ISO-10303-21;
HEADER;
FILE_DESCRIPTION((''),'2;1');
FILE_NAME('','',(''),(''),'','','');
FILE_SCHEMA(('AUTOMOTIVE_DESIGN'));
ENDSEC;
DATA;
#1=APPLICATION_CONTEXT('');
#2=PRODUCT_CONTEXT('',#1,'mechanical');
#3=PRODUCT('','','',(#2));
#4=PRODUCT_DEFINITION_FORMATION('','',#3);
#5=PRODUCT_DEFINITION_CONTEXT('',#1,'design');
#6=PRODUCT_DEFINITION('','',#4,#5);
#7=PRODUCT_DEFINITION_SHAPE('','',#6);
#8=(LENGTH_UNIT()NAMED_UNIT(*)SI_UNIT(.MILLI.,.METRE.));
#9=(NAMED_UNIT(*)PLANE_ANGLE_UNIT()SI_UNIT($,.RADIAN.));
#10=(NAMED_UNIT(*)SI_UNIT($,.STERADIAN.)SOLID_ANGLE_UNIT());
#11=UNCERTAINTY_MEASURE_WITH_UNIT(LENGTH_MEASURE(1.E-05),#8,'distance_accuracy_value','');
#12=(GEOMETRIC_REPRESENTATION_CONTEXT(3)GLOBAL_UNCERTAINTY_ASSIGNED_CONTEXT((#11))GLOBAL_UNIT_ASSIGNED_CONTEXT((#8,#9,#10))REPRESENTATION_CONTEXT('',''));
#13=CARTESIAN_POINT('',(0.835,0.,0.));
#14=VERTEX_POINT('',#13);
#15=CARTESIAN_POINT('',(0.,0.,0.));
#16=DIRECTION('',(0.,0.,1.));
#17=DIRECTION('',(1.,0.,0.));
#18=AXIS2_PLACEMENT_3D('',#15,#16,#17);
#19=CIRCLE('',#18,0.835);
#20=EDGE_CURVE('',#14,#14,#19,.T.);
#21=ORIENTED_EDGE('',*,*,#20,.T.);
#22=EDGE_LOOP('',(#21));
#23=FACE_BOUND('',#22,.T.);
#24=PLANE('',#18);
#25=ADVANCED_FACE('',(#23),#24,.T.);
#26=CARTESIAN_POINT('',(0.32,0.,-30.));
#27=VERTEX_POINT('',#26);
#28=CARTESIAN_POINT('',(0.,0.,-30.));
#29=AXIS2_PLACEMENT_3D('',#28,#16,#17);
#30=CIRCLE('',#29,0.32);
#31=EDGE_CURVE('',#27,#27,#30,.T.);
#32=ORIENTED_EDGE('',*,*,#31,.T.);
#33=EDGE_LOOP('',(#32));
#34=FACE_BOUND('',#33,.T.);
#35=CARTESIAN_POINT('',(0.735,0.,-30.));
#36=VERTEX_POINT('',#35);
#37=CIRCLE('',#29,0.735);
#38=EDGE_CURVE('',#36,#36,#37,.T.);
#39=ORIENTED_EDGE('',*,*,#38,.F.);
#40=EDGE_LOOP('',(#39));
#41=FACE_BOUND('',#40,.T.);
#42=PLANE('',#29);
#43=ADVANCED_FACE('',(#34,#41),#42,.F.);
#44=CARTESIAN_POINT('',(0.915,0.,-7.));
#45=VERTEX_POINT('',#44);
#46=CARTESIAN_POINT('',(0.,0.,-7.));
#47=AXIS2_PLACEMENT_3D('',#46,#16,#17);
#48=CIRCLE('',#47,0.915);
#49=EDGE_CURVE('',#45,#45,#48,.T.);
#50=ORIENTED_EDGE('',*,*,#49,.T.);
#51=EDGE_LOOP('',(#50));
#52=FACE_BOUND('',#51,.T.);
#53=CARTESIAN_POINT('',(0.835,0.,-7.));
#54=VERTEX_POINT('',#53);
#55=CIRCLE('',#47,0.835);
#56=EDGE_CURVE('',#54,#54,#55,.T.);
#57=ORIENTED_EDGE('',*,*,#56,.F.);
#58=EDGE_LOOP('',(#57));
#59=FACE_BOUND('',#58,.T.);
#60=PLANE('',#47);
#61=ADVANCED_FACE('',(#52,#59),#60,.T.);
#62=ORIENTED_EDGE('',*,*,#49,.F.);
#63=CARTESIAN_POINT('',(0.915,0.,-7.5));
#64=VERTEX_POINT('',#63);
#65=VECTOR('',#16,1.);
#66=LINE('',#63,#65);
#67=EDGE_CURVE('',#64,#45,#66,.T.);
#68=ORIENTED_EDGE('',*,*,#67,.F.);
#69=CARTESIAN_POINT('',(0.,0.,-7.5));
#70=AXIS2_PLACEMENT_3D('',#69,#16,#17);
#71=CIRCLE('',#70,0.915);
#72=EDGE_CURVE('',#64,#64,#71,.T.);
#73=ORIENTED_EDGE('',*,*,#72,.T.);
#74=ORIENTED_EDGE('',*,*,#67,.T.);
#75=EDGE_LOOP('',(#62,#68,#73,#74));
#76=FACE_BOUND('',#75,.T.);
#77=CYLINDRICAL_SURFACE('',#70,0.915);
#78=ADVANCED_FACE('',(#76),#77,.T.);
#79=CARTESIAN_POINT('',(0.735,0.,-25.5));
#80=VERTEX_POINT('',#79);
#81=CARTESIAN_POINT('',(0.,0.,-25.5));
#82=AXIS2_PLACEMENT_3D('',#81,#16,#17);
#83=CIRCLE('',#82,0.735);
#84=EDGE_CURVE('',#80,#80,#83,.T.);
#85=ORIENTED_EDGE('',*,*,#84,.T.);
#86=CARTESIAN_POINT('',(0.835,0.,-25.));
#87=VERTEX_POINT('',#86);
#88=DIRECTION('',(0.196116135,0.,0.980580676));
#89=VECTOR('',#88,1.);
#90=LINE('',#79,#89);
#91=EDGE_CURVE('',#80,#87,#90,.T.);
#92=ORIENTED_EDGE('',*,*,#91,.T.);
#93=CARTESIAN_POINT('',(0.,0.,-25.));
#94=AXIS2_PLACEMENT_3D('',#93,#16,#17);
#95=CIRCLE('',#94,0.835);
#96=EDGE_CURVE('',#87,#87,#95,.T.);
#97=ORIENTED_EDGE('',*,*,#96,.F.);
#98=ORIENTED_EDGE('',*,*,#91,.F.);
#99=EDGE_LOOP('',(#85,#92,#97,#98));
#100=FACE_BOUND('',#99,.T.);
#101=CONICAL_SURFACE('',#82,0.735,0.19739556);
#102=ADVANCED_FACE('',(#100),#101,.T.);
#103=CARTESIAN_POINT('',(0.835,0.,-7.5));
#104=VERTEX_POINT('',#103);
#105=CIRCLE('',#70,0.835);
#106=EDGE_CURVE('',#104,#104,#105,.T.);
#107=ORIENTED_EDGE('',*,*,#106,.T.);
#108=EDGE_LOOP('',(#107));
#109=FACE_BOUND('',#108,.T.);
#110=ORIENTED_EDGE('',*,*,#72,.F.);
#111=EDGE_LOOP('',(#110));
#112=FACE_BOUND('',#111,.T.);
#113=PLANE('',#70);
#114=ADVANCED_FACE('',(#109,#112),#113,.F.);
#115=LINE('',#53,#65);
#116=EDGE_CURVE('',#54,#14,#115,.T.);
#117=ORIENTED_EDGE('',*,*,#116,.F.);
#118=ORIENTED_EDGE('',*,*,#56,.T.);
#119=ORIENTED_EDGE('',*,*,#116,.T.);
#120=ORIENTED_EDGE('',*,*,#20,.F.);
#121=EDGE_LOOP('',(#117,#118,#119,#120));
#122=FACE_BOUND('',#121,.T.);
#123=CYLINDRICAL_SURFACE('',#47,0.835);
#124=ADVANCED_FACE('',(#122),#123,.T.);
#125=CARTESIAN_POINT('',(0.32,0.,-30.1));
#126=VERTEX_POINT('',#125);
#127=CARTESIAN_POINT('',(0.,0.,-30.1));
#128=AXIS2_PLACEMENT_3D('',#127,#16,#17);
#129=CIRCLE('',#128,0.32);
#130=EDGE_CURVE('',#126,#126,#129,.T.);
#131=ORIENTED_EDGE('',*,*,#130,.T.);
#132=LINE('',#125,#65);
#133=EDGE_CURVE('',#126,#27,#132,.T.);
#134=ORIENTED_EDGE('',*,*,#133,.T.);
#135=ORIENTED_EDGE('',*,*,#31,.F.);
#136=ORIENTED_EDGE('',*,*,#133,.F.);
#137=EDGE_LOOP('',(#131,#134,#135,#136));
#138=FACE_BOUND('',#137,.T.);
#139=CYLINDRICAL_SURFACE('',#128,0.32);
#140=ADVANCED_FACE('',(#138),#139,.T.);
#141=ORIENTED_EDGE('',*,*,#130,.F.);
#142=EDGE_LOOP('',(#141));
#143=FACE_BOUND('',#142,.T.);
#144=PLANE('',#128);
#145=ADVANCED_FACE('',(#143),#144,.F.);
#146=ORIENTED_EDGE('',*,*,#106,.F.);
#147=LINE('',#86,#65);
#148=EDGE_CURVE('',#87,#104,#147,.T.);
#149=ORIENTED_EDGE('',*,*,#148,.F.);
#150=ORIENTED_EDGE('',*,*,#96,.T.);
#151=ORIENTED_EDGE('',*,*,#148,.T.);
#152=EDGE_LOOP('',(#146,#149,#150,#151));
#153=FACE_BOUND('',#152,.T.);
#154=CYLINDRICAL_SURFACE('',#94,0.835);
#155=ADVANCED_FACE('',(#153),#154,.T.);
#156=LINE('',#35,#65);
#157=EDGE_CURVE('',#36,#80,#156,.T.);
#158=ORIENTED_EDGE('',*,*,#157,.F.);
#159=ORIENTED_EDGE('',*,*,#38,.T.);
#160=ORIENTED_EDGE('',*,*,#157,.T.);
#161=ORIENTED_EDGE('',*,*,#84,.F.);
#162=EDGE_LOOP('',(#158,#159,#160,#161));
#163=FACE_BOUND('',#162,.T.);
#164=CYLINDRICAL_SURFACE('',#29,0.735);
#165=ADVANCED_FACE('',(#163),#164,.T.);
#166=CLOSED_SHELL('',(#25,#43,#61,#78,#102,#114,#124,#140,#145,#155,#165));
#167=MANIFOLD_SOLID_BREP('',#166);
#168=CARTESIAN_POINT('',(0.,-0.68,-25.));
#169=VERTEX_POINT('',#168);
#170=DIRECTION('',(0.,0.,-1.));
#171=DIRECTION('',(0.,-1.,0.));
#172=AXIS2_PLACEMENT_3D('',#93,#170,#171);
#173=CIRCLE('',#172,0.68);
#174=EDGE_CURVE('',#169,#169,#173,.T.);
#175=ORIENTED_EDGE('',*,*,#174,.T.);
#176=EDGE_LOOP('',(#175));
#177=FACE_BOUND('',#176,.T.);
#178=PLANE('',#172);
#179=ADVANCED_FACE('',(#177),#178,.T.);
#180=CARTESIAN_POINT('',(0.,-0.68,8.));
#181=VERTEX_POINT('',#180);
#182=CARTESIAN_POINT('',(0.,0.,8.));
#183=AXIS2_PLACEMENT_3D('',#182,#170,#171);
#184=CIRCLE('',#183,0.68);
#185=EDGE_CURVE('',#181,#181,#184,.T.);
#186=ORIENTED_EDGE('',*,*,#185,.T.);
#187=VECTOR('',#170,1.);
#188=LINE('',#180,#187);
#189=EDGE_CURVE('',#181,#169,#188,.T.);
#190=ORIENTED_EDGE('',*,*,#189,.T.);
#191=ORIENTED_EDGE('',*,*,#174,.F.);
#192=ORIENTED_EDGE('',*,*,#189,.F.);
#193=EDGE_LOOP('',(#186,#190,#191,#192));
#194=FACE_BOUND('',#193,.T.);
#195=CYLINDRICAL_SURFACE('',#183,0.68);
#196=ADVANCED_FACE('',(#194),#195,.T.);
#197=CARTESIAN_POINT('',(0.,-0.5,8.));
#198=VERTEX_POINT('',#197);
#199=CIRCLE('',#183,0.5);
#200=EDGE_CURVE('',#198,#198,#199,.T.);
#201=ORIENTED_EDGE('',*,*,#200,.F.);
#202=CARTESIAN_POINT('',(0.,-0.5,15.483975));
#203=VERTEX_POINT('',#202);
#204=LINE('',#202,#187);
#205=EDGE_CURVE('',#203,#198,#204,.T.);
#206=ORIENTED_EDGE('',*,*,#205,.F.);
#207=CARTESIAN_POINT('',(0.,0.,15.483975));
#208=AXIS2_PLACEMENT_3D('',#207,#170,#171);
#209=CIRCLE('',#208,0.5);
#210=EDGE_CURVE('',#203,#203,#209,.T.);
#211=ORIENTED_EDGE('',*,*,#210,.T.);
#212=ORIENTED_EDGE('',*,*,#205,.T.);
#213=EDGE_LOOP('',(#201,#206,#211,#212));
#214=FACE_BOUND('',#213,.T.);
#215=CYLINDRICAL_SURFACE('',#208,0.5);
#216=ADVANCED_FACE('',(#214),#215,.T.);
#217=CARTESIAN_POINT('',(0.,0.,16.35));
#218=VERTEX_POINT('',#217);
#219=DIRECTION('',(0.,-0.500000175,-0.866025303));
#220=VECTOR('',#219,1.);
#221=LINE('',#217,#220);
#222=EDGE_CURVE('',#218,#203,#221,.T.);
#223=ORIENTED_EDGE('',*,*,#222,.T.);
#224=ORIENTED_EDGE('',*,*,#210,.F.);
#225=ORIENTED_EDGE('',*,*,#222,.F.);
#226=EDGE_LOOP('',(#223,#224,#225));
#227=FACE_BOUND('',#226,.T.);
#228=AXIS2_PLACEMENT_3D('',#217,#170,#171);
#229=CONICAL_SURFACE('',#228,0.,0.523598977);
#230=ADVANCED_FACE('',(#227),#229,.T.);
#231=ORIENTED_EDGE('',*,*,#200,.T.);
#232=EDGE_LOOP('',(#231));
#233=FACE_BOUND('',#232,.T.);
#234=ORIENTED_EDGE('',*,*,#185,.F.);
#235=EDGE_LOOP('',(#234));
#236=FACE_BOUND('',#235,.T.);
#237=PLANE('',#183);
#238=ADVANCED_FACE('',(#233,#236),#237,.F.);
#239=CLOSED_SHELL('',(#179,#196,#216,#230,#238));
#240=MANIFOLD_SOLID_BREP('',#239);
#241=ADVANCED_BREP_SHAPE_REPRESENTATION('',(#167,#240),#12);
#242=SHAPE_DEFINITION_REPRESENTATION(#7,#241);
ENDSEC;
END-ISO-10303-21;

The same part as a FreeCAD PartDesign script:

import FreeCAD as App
import Part
import Sketcher

V = App.Vector
Q = App.Units.Quantity


def add_polygon(sketch, points):
    """Adds a closed chain of lines whose ends are joined by coincident constraints."""
    first, n = sketch.GeometryCount, len(points)
    for a, b in zip(points, points[1:] + points[:1]):
        sketch.addGeometry(Part.LineSegment(App.Vector(*a, 0), App.Vector(*b, 0)), False)
    for i in range(n):
        sketch.addConstraint(Sketcher.Constraint("Coincident", first + i, 2, first + (i + 1) % n, 1))

doc = App.newDocument("Part")
body = doc.addObject("PartDesign::Body", "Body")

# Sketch on XZ plane
sketch1 = body.newObject("Sketcher::SketchObject", "Sketch")
sketch1.AttachmentSupport = (doc.getObject("XZ_Plane"), [""])
sketch1.MapMode = "FlatFace"
add_polygon(sketch1, [(0.83, 0), (0, 0), (0, -30.1), (0.32, -30.1), (0.32, -30), (0.73, -30), (0.73, -25.5), (0.83, -25), (0.83, -7.5), (0.92, -7.5), (0.92, -7), (0.83, -7)])  # lines 0-11
sketch1.addConstraint([
    Sketcher.Constraint("Horizontal", 0),
    Sketcher.Constraint("Vertical", 1),
    Sketcher.Constraint("Horizontal", 2),
    Sketcher.Constraint("Vertical", 3),
    Sketcher.Constraint("Horizontal", 4),
    Sketcher.Constraint("Vertical", 5),
    Sketcher.Constraint("Vertical", 7),
    Sketcher.Constraint("Horizontal", 8),
    Sketcher.Constraint("Vertical", 9),
    Sketcher.Constraint("Horizontal", 10),
    Sketcher.Constraint("Vertical", 11),
    Sketcher.Constraint("Coincident", 0, 2, -1, 1),
    Sketcher.Constraint("Vertical", 7, 2, 10, 2),
    Sketcher.Constraint("DistanceY", 11, 1, 11, 2, Q("7 mm")),
    Sketcher.Constraint("DistanceY", 1, 2, 1, 1, Q("30.1 mm")),
    Sketcher.Constraint("DistanceY", 3, 1, 3, 2, Q("0.1 mm")),
    Sketcher.Constraint("DistanceY", 5, 1, 5, 2, Q("4.5 mm")),
    Sketcher.Constraint("DistanceY", 7, 1, 7, 2, Q("17.5 mm")),
    Sketcher.Constraint("DistanceY", 9, 1, 9, 2, Q("0.5 mm")),
    Sketcher.Constraint("DistanceX", 2, 1, 2, 2, Q("0.32 mm")),
    Sketcher.Constraint("DistanceX", 8, 1, 8, 2, Q("0.08 mm")),
    Sketcher.Constraint("DistanceX", 5, 2, 6, 2, Q("0.1 mm")),
    Sketcher.Constraint("DistanceX", 0, 2, 0, 1, Q("0.835 mm")),
])
revolution = body.newObject("PartDesign::Revolution", "Revolution")
revolution.Profile = sketch1
revolution.ReferenceAxis = (sketch1, ["V_Axis"])
revolution.Angle = 360
body2 = doc.addObject("PartDesign::Body", "Body001")

# Sketch on YZ plane
sketch2 = body2.newObject("Sketcher::SketchObject", "Sketch001")
sketch2.AttachmentSupport = (doc.getObject("YZ_Plane001"), [""])
sketch2.MapMode = "FlatFace"
add_polygon(sketch2, [(0, -25), (0, 16.35), (-0.5, 15.48), (-0.5, 8), (-0.68, 8), (-0.68, -25)])  # lines 0-5
sketch2.addConstraint([
    Sketcher.Constraint("Vertical", 0),
    Sketcher.Constraint("Vertical", 2),
    Sketcher.Constraint("Horizontal", 3),
    Sketcher.Constraint("Vertical", 4),
    Sketcher.Constraint("Horizontal", 5),
    Sketcher.Constraint("PointOnObject", 0, 2, -2),
    Sketcher.Constraint("DistanceY", 4, 2, 4, 1, Q("33 mm")),
    Sketcher.Constraint("Angle", 1, Q("-120.000012 deg")),
    Sketcher.Constraint("Distance", 1, Q("1 mm")),
    Sketcher.Constraint("DistanceY", -1, 1, 2, 2, Q("8 mm")),
    Sketcher.Constraint("DistanceX", 3, 2, 3, 1, Q("0.18 mm")),
    Sketcher.Constraint("DistanceY", 0, 1, 0, 2, Q("41.35 mm")),
])
revolution2 = body2.newObject("PartDesign::Revolution", "Revolution001")
revolution2.Profile = sketch2
revolution2.ReferenceAxis = (sketch2, ["V_Axis"])
revolution2.Angle = 360

doc.recompute()
